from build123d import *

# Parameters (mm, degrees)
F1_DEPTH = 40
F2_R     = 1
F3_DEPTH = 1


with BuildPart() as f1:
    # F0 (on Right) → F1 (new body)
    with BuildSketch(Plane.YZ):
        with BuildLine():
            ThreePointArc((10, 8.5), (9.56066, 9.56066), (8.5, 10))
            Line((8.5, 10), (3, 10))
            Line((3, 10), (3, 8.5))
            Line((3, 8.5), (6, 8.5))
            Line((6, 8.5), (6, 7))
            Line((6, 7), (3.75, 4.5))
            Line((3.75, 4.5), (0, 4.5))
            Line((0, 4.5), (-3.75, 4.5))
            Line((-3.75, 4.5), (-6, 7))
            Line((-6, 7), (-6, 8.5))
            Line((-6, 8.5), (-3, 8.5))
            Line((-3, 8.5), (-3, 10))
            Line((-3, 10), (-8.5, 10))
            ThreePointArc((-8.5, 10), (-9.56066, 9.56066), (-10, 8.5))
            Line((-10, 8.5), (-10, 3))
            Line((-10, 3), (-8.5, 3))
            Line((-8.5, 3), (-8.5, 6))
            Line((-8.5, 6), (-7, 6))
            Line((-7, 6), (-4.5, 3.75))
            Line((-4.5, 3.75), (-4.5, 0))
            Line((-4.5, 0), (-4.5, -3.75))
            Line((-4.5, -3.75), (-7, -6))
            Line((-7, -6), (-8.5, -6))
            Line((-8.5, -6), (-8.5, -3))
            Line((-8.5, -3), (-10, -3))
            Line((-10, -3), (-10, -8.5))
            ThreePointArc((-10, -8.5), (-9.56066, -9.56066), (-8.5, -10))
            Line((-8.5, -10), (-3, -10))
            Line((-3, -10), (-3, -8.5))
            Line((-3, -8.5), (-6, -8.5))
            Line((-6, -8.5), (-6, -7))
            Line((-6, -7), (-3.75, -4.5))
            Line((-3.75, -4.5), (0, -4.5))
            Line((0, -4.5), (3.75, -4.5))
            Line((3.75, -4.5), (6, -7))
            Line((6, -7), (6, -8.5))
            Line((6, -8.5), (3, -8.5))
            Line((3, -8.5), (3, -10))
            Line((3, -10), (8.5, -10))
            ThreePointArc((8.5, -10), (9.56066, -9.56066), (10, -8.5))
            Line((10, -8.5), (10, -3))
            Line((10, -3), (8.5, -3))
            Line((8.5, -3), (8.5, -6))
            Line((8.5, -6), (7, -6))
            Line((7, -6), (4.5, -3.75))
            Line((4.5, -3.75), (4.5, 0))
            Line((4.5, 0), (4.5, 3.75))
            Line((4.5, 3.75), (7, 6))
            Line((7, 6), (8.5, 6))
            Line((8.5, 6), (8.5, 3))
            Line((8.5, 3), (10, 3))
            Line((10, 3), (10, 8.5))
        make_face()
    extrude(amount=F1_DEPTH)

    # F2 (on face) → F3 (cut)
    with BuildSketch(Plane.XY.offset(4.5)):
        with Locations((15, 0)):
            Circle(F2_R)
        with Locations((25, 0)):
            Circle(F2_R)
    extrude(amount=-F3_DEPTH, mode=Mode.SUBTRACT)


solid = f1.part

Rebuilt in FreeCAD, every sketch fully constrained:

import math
import FreeCAD as App
import Part
import Sketcher
from FreeCAD import Vector
Q = App.Units.Quantity

doc = App.newDocument("Part")
body = doc.addObject("PartDesign::Body", "Body")

sketch1 = body.newObject("Sketcher::SketchObject", "Sketch")
sketch1.AttachmentSupport = (doc.getObject("YZ_Plane"), [""])
sketch1.MapMode = "FlatFace"
sketch1.addGeometry(Part.ArcOfCircle(Part.Circle(Vector(8.499999, 8.499999, 0), Vector(0, 0, 1), 1.500001), math.radians(0.000022), math.radians(89.999978)), False)
sketch1.addGeometry(Part.LineSegment(Vector(8.5, 10, 0), Vector(3, 10, 0)), False)
sketch1.addGeometry(Part.LineSegment(Vector(3, 10, 0), Vector(3, 8.5, 0)), False)
sketch1.addGeometry(Part.LineSegment(Vector(3, 8.5, 0), Vector(6, 8.5, 0)), False)
sketch1.addGeometry(Part.LineSegment(Vector(6, 8.5, 0), Vector(6, 7, 0)), False)
sketch1.addGeometry(Part.LineSegment(Vector(6, 7, 0), Vector(3.75, 4.5, 0)), False)
sketch1.addGeometry(Part.LineSegment(Vector(3.75, 4.5, 0), Vector(-3.75, 4.5, 0)), False)
sketch1.addGeometry(Part.LineSegment(Vector(-3.75, 4.5, 0), Vector(-6, 7, 0)), False)
sketch1.addGeometry(Part.LineSegment(Vector(-6, 7, 0), Vector(-6, 8.5, 0)), False)
sketch1.addGeometry(Part.LineSegment(Vector(-6, 8.5, 0), Vector(-3, 8.5, 0)), False)
sketch1.addGeometry(Part.LineSegment(Vector(-3, 8.5, 0), Vector(-3, 10, 0)), False)
sketch1.addGeometry(Part.LineSegment(Vector(-3, 10, 0), Vector(-8.5, 10, 0)), False)
sketch1.addGeometry(Part.ArcOfCircle(Part.Circle(Vector(-8.499999, 8.499999, 0), Vector(0, 0, 1), 1.500001), math.radians(90.000022), math.radians(179.999978)), False)
sketch1.addGeometry(Part.LineSegment(Vector(-10, 8.5, 0), Vector(-10, 3, 0)), False)
sketch1.addGeometry(Part.LineSegment(Vector(-10, 3, 0), Vector(-8.5, 3, 0)), False)
sketch1.addGeometry(Part.LineSegment(Vector(-8.5, 3, 0), Vector(-8.5, 6, 0)), False)
sketch1.addGeometry(Part.LineSegment(Vector(-8.5, 6, 0), Vector(-7, 6, 0)), False)
sketch1.addGeometry(Part.LineSegment(Vector(-7, 6, 0), Vector(-4.5, 3.75, 0)), False)
sketch1.addGeometry(Part.LineSegment(Vector(-4.5, 3.75, 0), Vector(-4.5, -3.75, 0)), False)
sketch1.addGeometry(Part.LineSegment(Vector(-4.5, -3.75, 0), Vector(-7, -6, 0)), False)
sketch1.addGeometry(Part.LineSegment(Vector(-7, -6, 0), Vector(-8.5, -6, 0)), False)
sketch1.addGeometry(Part.LineSegment(Vector(-8.5, -6, 0), Vector(-8.5, -3, 0)), False)
sketch1.addGeometry(Part.LineSegment(Vector(-8.5, -3, 0), Vector(-10, -3, 0)), False)
sketch1.addGeometry(Part.LineSegment(Vector(-10, -3, 0), Vector(-10, -8.5, 0)), False)
sketch1.addGeometry(Part.ArcOfCircle(Part.Circle(Vector(-8.499999, -8.499999, 0), Vector(0, 0, 1), 1.500001), math.radians(-179.999978), math.radians(-90.000022)), False)
sketch1.addGeometry(Part.LineSegment(Vector(-8.5, -10, 0), Vector(-3, -10, 0)), False)
sketch1.addGeometry(Part.LineSegment(Vector(-3, -10, 0), Vector(-3, -8.5, 0)), False)
sketch1.addGeometry(Part.LineSegment(Vector(-3, -8.5, 0), Vector(-6, -8.5, 0)), False)
sketch1.addGeometry(Part.LineSegment(Vector(-6, -8.5, 0), Vector(-6, -7, 0)), False)
sketch1.addGeometry(Part.LineSegment(Vector(-6, -7, 0), Vector(-3.75, -4.5, 0)), False)
sketch1.addGeometry(Part.LineSegment(Vector(-3.75, -4.5, 0), Vector(3.75, -4.5, 0)), False)
sketch1.addGeometry(Part.LineSegment(Vector(3.75, -4.5, 0), Vector(6, -7, 0)), False)
sketch1.addGeometry(Part.LineSegment(Vector(6, -7, 0), Vector(6, -8.5, 0)), False)
sketch1.addGeometry(Part.LineSegment(Vector(6, -8.5, 0), Vector(3, -8.5, 0)), False)
sketch1.addGeometry(Part.LineSegment(Vector(3, -8.5, 0), Vector(3, -10, 0)), False)
sketch1.addGeometry(Part.LineSegment(Vector(3, -10, 0), Vector(8.5, -10, 0)), False)
sketch1.addGeometry(Part.ArcOfCircle(Part.Circle(Vector(8.499999, -8.499999, 0), Vector(0, 0, 1), 1.500001), math.radians(-89.999978), math.radians(-0.000022)), False)
sketch1.addGeometry(Part.LineSegment(Vector(10, -8.5, 0), Vector(10, -3, 0)), False)
sketch1.addGeometry(Part.LineSegment(Vector(10, -3, 0), Vector(8.5, -3, 0)), False)
sketch1.addGeometry(Part.LineSegment(Vector(8.5, -3, 0), Vector(8.5, -6, 0)), False)
sketch1.addGeometry(Part.LineSegment(Vector(8.5, -6, 0), Vector(7, -6, 0)), False)
sketch1.addGeometry(Part.LineSegment(Vector(7, -6, 0), Vector(4.5, -3.75, 0)), False)
sketch1.addGeometry(Part.LineSegment(Vector(4.5, -3.75, 0), Vector(4.5, 3.75, 0)), False)
sketch1.addGeometry(Part.LineSegment(Vector(4.5, 3.75, 0), Vector(7, 6, 0)), False)
sketch1.addGeometry(Part.LineSegment(Vector(7, 6, 0), Vector(8.5, 6, 0)), False)
sketch1.addGeometry(Part.LineSegment(Vector(8.5, 6, 0), Vector(8.5, 3, 0)), False)
sketch1.addGeometry(Part.LineSegment(Vector(8.5, 3, 0), Vector(10, 3, 0)), False)
sketch1.addGeometry(Part.LineSegment(Vector(10, 3, 0), Vector(10, 8.5, 0)), False)
sketch1.addConstraint(Sketcher.Constraint("Tangent", 0, 2, 1, 1))
sketch1.addConstraint(Sketcher.Constraint("Coincident", 1, 2, 2, 1))
sketch1.addConstraint(Sketcher.Constraint("Coincident", 2, 2, 3, 1))
sketch1.addConstraint(Sketcher.Constraint("Coincident", 3, 2, 4, 1))
sketch1.addConstraint(Sketcher.Constraint("Coincident", 4, 2, 5, 1))
sketch1.addConstraint(Sketcher.Constraint("Coincident", 5, 2, 6, 1))
sketch1.addConstraint(Sketcher.Constraint("Coincident", 6, 2, 7, 1))
sketch1.addConstraint(Sketcher.Constraint("Coincident", 7, 2, 8, 1))
sketch1.addConstraint(Sketcher.Constraint("Coincident", 8, 2, 9, 1))
sketch1.addConstraint(Sketcher.Constraint("Coincident", 9, 2, 10, 1))
sketch1.addConstraint(Sketcher.Constraint("Coincident", 10, 2, 11, 1))
sketch1.addConstraint(Sketcher.Constraint("Tangent", 11, 2, 12, 1))
sketch1.addConstraint(Sketcher.Constraint("Tangent", 12, 2, 13, 1))
sketch1.addConstraint(Sketcher.Constraint("Coincident", 13, 2, 14, 1))
sketch1.addConstraint(Sketcher.Constraint("Coincident", 14, 2, 15, 1))
sketch1.addConstraint(Sketcher.Constraint("Coincident", 15, 2, 16, 1))
sketch1.addConstraint(Sketcher.Constraint("Coincident", 16, 2, 17, 1))
sketch1.addConstraint(Sketcher.Constraint("Coincident", 17, 2, 18, 1))
sketch1.addConstraint(Sketcher.Constraint("Coincident", 18, 2, 19, 1))
sketch1.addConstraint(Sketcher.Constraint("Coincident", 19, 2, 20, 1))
sketch1.addConstraint(Sketcher.Constraint("Coincident", 20, 2, 21, 1))
sketch1.addConstraint(Sketcher.Constraint("Coincident", 21, 2, 22, 1))
sketch1.addConstraint(Sketcher.Constraint("Coincident", 22, 2, 23, 1))
sketch1.addConstraint(Sketcher.Constraint("Tangent", 23, 2, 24, 1))
sketch1.addConstraint(Sketcher.Constraint("Tangent", 24, 2, 25, 1))
sketch1.addConstraint(Sketcher.Constraint("Coincident", 25, 2, 26, 1))
sketch1.addConstraint(Sketcher.Constraint("Coincident", 26, 2, 27, 1))
sketch1.addConstraint(Sketcher.Constraint("Coincident", 27, 2, 28, 1))
sketch1.addConstraint(Sketcher.Constraint("Coincident", 28, 2, 29, 1))
sketch1.addConstraint(Sketcher.Constraint("Coincident", 29, 2, 30, 1))
sketch1.addConstraint(Sketcher.Constraint("Coincident", 30, 2, 31, 1))
sketch1.addConstraint(Sketcher.Constraint("Coincident", 31, 2, 32, 1))
sketch1.addConstraint(Sketcher.Constraint("Coincident", 32, 2, 33, 1))
sketch1.addConstraint(Sketcher.Constraint("Coincident", 33, 2, 34, 1))
sketch1.addConstraint(Sketcher.Constraint("Coincident", 34, 2, 35, 1))
sketch1.addConstraint(Sketcher.Constraint("Tangent", 35, 2, 36, 1))
sketch1.addConstraint(Sketcher.Constraint("Tangent", 36, 2, 37, 1))
sketch1.addConstraint(Sketcher.Constraint("Coincident", 37, 2, 38, 1))
sketch1.addConstraint(Sketcher.Constraint("Coincident", 38, 2, 39, 1))
sketch1.addConstraint(Sketcher.Constraint("Coincident", 39, 2, 40, 1))
sketch1.addConstraint(Sketcher.Constraint("Coincident", 40, 2, 41, 1))
sketch1.addConstraint(Sketcher.Constraint("Coincident", 41, 2, 42, 1))
sketch1.addConstraint(Sketcher.Constraint("Coincident", 42, 2, 43, 1))
sketch1.addConstraint(Sketcher.Constraint("Coincident", 43, 2, 44, 1))
sketch1.addConstraint(Sketcher.Constraint("Coincident", 44, 2, 45, 1))
sketch1.addConstraint(Sketcher.Constraint("Coincident", 45, 2, 46, 1))
sketch1.addConstraint(Sketcher.Constraint("Coincident", 46, 2, 47, 1))
sketch1.addConstraint(Sketcher.Constraint("Tangent", 47, 2, 0, 1))
sketch1.addConstraint(Sketcher.Constraint("Horizontal", 1))
sketch1.addConstraint(Sketcher.Constraint("Vertical", 2))
sketch1.addConstraint(Sketcher.Constraint("Horizontal", 3))
sketch1.addConstraint(Sketcher.Constraint("Vertical", 4))
sketch1.addConstraint(Sketcher.Constraint("Horizontal", 6))
sketch1.addConstraint(Sketcher.Constraint("Vertical", 8))
sketch1.addConstraint(Sketcher.Constraint("Horizontal", 9))
sketch1.addConstraint(Sketcher.Constraint("Vertical", 10))
sketch1.addConstraint(Sketcher.Constraint("Horizontal", 11))
sketch1.addConstraint(Sketcher.Constraint("Vertical", 13))
sketch1.addConstraint(Sketcher.Constraint("Horizontal", 14))
sketch1.addConstraint(Sketcher.Constraint("Vertical", 15))
sketch1.addConstraint(Sketcher.Constraint("Horizontal", 16))
sketch1.addConstraint(Sketcher.Constraint("Vertical", 18))
sketch1.addConstraint(Sketcher.Constraint("Horizontal", 20))
sketch1.addConstraint(Sketcher.Constraint("Vertical", 21))
sketch1.addConstraint(Sketcher.Constraint("Horizontal", 22))
sketch1.addConstraint(Sketcher.Constraint("Vertical", 23))
sketch1.addConstraint(Sketcher.Constraint("Horizontal", 25))
sketch1.addConstraint(Sketcher.Constraint("Vertical", 26))
sketch1.addConstraint(Sketcher.Constraint("Horizontal", 27))
sketch1.addConstraint(Sketcher.Constraint("Vertical", 28))
sketch1.addConstraint(Sketcher.Constraint("Horizontal", 30))
sketch1.addConstraint(Sketcher.Constraint("Vertical", 32))
sketch1.addConstraint(Sketcher.Constraint("Horizontal", 33))
sketch1.addConstraint(Sketcher.Constraint("Vertical", 34))
sketch1.addConstraint(Sketcher.Constraint("Horizontal", 35))
sketch1.addConstraint(Sketcher.Constraint("Vertical", 37))
sketch1.addConstraint(Sketcher.Constraint("Horizontal", 38))
sketch1.addConstraint(Sketcher.Constraint("Vertical", 39))
sketch1.addConstraint(Sketcher.Constraint("Horizontal", 40))
sketch1.addConstraint(Sketcher.Constraint("Vertical", 42))
sketch1.addConstraint(Sketcher.Constraint("Horizontal", 44))
sketch1.addConstraint(Sketcher.Constraint("Vertical", 45))
sketch1.addConstraint(Sketcher.Constraint("Horizontal", 46))
sketch1.addConstraint(Sketcher.Constraint("Vertical", 47))
sketch1.addConstraint(Sketcher.Constraint("Equal", 0, 12))
sketch1.addConstraint(Sketcher.Constraint("Equal", 12, 24))
sketch1.addConstraint(Sketcher.Constraint("Equal", 24, 36))
sketch1.addConstraint(Sketcher.Constraint("Symmetric", 0, 3, 24, 3, -1, 1))
sketch1.addConstraint(Sketcher.Constraint("Symmetric", 12, 3, 36, 3, -1, 1))
sketch1.addConstraint(Sketcher.Constraint("Symmetric", 2, 2, 26, 2, -1, 1))
sketch1.addConstraint(Sketcher.Constraint("Symmetric", 4, 2, 28, 2, -1, 1))
sketch1.addConstraint(Sketcher.Constraint("Symmetric", 5, 2, 29, 2, -1, 1))
sketch1.addConstraint(Sketcher.Constraint("Symmetric", 7, 2, 31, 2, -1, 1))
sketch1.addConstraint(Sketcher.Constraint("Symmetric", 9, 2, 33, 2, -1, 1))
sketch1.addConstraint(Sketcher.Constraint("Symmetric", 14, 2, 38, 2, -1, 1))
sketch1.addConstraint(Sketcher.Constraint("Symmetric", 16, 2, 40, 2, -1, 1))
sketch1.addConstraint(Sketcher.Constraint("Symmetric", 17, 2, 41, 2, -1, 1))
sketch1.addConstraint(Sketcher.Constraint("Symmetric", 19, 2, 43, 2, -1, 1))
sketch1.addConstraint(Sketcher.Constraint("Symmetric", 21, 2, 45, 2, -1, 1))
sketch1.addConstraint(Sketcher.Constraint("Symmetric", 0, 3, 12, 3, -2))
sketch1.addConstraint(Sketcher.Constraint("Symmetric", 4, 2, 7, 2, -2))
sketch1.addConstraint(Sketcher.Constraint("Symmetric", 2, 2, 9, 2, -2))
sketch1.addConstraint(Sketcher.Constraint("Symmetric", 21, 2, 38, 2, -2))
sketch1.addConstraint(Sketcher.Constraint("Symmetric", 19, 2, 40, 2, -2))
sketch1.addConstraint(Sketcher.Constraint("Perpendicular", 5, 17))
sketch1.addConstraint(Sketcher.Constraint("Perpendicular", 7, 19))
sketch1.addConstraint(Sketcher.Constraint("Perpendicular", 19, 31))
sketch1.addConstraint(Sketcher.Constraint("Perpendicular", 31, 43))
sketch1.addConstraint(Sketcher.Constraint("Horizontal", 12, 3, 2, 2))
sketch1.addConstraint(Sketcher.Constraint("Horizontal", 18, 2, 41, 2))
sketch1.addConstraint(Sketcher.Constraint("Vertical", 11, 2, 14, 2))
sketch1.addConstraint(Sketcher.Constraint("Equal", 14, 16))
sketch1.addConstraint(Sketcher.Constraint("Equal", 2, 4))
sketch1.addConstraint(Sketcher.Constraint("Equal", 35, 13))
sketch1.addConstraint(Sketcher.Constraint("Equal", 33, 15))
sketch1.addConstraint(Sketcher.Constraint("Equal", 30, 18))
sketch1.addConstraint(Sketcher.Constraint("Equal", 7, 17))
sketch1.addConstraint(Sketcher.Constraint("Radius", 0, Q("1.500001 mm")))
sketch1.addConstraint(Sketcher.Constraint("DistanceX", 3, 1, 3, 2, Q("3 mm")))
sketch1.addConstraint(Sketcher.Constraint("DistanceX", 1, 2, 1, 1, Q("5.5 mm")))
sketch1.addConstraint(Sketcher.Constraint("DistanceX", 6, 2, 6, 1, Q("7.5 mm")))
sketch1.addConstraint(Sketcher.Constraint("DistanceY", -1, 1, 0, 2, Q("10 mm")))
sketch1.addConstraint(Sketcher.Constraint("DistanceY", 5, 2, 2, 2, Q("4 mm")))
pad1 = body.newObject("PartDesign::Pad", "Pad")
pad1.Profile = sketch1
pad1.Length = 40

sketch2 = body.newObject("Sketcher::SketchObject", "Sketch001")
sketch2.AttachmentSupport = (doc.getObject("XY_Plane"), [""])
sketch2.MapMode = "FlatFace"
sketch2.AttachmentOffset = App.Placement(Vector(0, 0, 4.5), App.Rotation())
sketch2.addGeometry(Part.Circle(Vector(15, 0, 0), Vector(0, 0, 1), 1), False)
sketch2.addGeometry(Part.Circle(Vector(25, 0, 0), Vector(0, 0, 1), 1), False)
sketch2.addConstraint(Sketcher.Constraint("Equal", 0, 1))
sketch2.addConstraint(Sketcher.Constraint("PointOnObject", 0, 3, -1))
sketch2.addConstraint(Sketcher.Constraint("PointOnObject", 1, 3, -1))
sketch2.addConstraint(Sketcher.Constraint("Diameter", 0, Q("2 mm")))
sketch2.addConstraint(Sketcher.Constraint("DistanceX", -1, 1, 0, 3, Q("15 mm")))
sketch2.addConstraint(Sketcher.Constraint("DistanceX", -1, 1, 1, 3, Q("25 mm")))
pocket1 = body.newObject("PartDesign::Pocket", "Pocket")
pocket1.Profile = sketch2
pocket1.Length = 1

doc.recompute()
